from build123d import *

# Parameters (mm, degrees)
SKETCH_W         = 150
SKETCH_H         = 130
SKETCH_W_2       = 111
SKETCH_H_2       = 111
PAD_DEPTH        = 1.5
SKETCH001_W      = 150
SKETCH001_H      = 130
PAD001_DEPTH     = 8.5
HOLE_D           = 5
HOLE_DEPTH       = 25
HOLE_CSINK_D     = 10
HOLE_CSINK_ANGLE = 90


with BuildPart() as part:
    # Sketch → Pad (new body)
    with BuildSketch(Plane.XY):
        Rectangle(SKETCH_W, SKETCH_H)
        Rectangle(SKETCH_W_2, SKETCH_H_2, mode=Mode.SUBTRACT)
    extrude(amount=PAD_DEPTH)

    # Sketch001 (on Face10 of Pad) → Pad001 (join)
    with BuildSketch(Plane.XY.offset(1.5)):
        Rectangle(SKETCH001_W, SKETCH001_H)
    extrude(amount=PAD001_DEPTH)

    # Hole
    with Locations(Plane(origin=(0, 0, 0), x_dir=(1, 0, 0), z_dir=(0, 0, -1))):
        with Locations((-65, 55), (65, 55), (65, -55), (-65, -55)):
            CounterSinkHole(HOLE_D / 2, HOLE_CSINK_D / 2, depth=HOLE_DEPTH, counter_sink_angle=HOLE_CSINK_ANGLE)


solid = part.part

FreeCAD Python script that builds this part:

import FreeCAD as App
import Part
import Sketcher
from FreeCAD import Vector


def add_polygon(sketch, points):
    """Adds a closed chain of lines whose ends are joined by coincident constraints."""
    first, n = sketch.GeometryCount, len(points)
    for a, b in zip(points, points[1:] + points[:1]):
        sketch.addGeometry(Part.LineSegment(App.Vector(*a, 0), App.Vector(*b, 0)), False)
    for i in range(n):
        sketch.addConstraint(Sketcher.Constraint("Coincident", first + i, 2, first + (i + 1) % n, 1))

doc = App.newDocument("Part")
params = doc.addObject("Spreadsheet::Sheet", "Params")
for row, (alias, value) in enumerate([
    ("sketch1_width", "150 mm"),
    ("sketch1_width2", "111 mm"),
    ("sketch1_height", "130 mm"),
    ("pad1_length", "1.5 mm"),
    ("sketch2_width", "150 mm"),
    ("sketch2_height", "130 mm"),
    ("pad2_length", "8.5 mm"),
    ("sketch3_diameter", "5 mm"),
    ("hole_diameter", "5 mm"),
    ("hole_depth", "25 mm"),
    ("hole_csink_diameter", "10 mm"),
], start=1):
    params.set(f"A{row}", alias)
    params.set(f"B{row}", "=" + value)
    params.setAlias(f"B{row}", alias)

body = doc.addObject("PartDesign::Body", "Body")

sketch1 = doc.addObject("Sketcher::SketchObject", "Sketch")
body.addObject(sketch1)
sketch1.AttachmentSupport = (doc.XY_Plane, [""])
sketch1.MapMode = "FlatFace"
add_polygon(sketch1, [(-75, 65), (-75, -65), (75, -65), (75, 65)])
add_polygon(sketch1, [(56, -56), (-56, -56), (-56, 56), (56, 56)])
sketch1.addConstraint([
    Sketcher.Constraint("Vertical", 0),
    Sketcher.Constraint("Horizontal", 1),
    Sketcher.Constraint("Vertical", 2),
    Sketcher.Constraint("Horizontal", 3),
    Sketcher.Constraint("Horizontal", 4),
    Sketcher.Constraint("Vertical", 5),
    Sketcher.Constraint("Horizontal", 6),
    Sketcher.Constraint("Vertical", 7),
    Sketcher.Constraint("Symmetric", 0, 2, 2, 2, -1, 1),
    Sketcher.Constraint("Symmetric", 4, 2, 6, 2, -1, 1),
    Sketcher.Constraint("Equal", 6, 5),
    Sketcher.Constraint("DistanceX", 1, 1, 1, 2, 150.0),
    Sketcher.Constraint("DistanceX", 4, 2, 4, 1, 111.0),
    Sketcher.Constraint("DistanceY", 0, 2, 0, 1, 130.0),
])
sketch1.setExpression("Constraints[19]", "Params.sketch1_width")
sketch1.setExpression("Constraints[20]", "Params.sketch1_width2")
sketch1.setExpression("Constraints[21]", "Params.sketch1_height")
pad1 = doc.addObject("PartDesign::Pad", "Pad")
body.addObject(pad1)
pad1.Profile = sketch1
pad1.setExpression("Length", "Params.pad1_length")

sketch2 = doc.addObject("Sketcher::SketchObject", "Sketch001")
body.addObject(sketch2)
sketch2.AttachmentSupport = (doc.XY_Plane, [""])
sketch2.MapMode = "FlatFace"
sketch2.AttachmentOffset = App.Placement(Vector(0, 0, 1.5), App.Rotation())
add_polygon(sketch2, [(-75, 65), (-75, -65), (75, -65), (75, 65)])
sketch2.addConstraint([
    Sketcher.Constraint("Vertical", 0),
    Sketcher.Constraint("Horizontal", 1),
    Sketcher.Constraint("Vertical", 2),
    Sketcher.Constraint("Horizontal", 3),
    Sketcher.Constraint("Symmetric", 0, 2, 2, 2, -1, 1),
    Sketcher.Constraint("DistanceX", 1, 1, 1, 2, 150.0),
    Sketcher.Constraint("DistanceY", 0, 2, 0, 1, 130.0),
])
sketch2.setExpression("Constraints[9]", "Params.sketch2_width")
sketch2.setExpression("Constraints[10]", "Params.sketch2_height")
pad2 = doc.addObject("PartDesign::Pad", "Pad001")
body.addObject(pad2)
pad2.Profile = sketch2
pad2.setExpression("Length", "Params.pad2_length")

sketch3 = doc.addObject("Sketcher::SketchObject", "Sketch002")
body.addObject(sketch3)
sketch3.AttachmentSupport = (doc.XY_Plane, [""])
sketch3.MapMode = "FlatFace"
sketch3.addGeometry([
    Part.Circle(Vector(-65, -55, 0), Vector(0, 0, 1), 2.5),
    Part.Circle(Vector(65, -55, 0), Vector(0, 0, 1), 2.5),
    Part.Circle(Vector(65, 55, 0), Vector(0, 0, 1), 2.5),
    Part.Circle(Vector(-65, 55, 0), Vector(0, 0, 1), 2.5),
], False)
sketch3.addConstraint([
    Sketcher.Constraint("Equal", 0, 1),
    Sketcher.Constraint("Equal", 1, 2),
    Sketcher.Constraint("Equal", 2, 3),
    Sketcher.Constraint("Symmetric", 0, 3, 2, 3, -1, 1),
    Sketcher.Constraint("Symmetric", 1, 3, 3, 3, -1, 1),
    Sketcher.Constraint("Symmetric", 0, 3, 1, 3, -2),
    Sketcher.Constraint("Diameter", 0, 5.0),
    Sketcher.Constraint("DistanceX", 0, 3, -1, 1, 65.0),
    Sketcher.Constraint("DistanceY", 0, 3, -1, 1, 55.0),
])
sketch3.setExpression("Constraints[6]", "Params.sketch3_diameter")
doc.recompute()
hole = doc.addObject("PartDesign::Hole", "Hole")
body.addObject(hole)
hole.Profile = sketch3
hole.ThreadType = "None"
hole.setExpression("Diameter", "Params.hole_diameter")
hole.DepthType = "Dimension"
hole.setExpression("Depth", "Params.hole_depth")
hole.DrillPoint = "Flat"
hole.HoleCutType = "Countersink"
hole.setExpression("HoleCutDiameter", "Params.hole_csink_diameter")
hole.HoleCutCountersinkAngle = 90
hole.Reversed = True

doc.recompute()
